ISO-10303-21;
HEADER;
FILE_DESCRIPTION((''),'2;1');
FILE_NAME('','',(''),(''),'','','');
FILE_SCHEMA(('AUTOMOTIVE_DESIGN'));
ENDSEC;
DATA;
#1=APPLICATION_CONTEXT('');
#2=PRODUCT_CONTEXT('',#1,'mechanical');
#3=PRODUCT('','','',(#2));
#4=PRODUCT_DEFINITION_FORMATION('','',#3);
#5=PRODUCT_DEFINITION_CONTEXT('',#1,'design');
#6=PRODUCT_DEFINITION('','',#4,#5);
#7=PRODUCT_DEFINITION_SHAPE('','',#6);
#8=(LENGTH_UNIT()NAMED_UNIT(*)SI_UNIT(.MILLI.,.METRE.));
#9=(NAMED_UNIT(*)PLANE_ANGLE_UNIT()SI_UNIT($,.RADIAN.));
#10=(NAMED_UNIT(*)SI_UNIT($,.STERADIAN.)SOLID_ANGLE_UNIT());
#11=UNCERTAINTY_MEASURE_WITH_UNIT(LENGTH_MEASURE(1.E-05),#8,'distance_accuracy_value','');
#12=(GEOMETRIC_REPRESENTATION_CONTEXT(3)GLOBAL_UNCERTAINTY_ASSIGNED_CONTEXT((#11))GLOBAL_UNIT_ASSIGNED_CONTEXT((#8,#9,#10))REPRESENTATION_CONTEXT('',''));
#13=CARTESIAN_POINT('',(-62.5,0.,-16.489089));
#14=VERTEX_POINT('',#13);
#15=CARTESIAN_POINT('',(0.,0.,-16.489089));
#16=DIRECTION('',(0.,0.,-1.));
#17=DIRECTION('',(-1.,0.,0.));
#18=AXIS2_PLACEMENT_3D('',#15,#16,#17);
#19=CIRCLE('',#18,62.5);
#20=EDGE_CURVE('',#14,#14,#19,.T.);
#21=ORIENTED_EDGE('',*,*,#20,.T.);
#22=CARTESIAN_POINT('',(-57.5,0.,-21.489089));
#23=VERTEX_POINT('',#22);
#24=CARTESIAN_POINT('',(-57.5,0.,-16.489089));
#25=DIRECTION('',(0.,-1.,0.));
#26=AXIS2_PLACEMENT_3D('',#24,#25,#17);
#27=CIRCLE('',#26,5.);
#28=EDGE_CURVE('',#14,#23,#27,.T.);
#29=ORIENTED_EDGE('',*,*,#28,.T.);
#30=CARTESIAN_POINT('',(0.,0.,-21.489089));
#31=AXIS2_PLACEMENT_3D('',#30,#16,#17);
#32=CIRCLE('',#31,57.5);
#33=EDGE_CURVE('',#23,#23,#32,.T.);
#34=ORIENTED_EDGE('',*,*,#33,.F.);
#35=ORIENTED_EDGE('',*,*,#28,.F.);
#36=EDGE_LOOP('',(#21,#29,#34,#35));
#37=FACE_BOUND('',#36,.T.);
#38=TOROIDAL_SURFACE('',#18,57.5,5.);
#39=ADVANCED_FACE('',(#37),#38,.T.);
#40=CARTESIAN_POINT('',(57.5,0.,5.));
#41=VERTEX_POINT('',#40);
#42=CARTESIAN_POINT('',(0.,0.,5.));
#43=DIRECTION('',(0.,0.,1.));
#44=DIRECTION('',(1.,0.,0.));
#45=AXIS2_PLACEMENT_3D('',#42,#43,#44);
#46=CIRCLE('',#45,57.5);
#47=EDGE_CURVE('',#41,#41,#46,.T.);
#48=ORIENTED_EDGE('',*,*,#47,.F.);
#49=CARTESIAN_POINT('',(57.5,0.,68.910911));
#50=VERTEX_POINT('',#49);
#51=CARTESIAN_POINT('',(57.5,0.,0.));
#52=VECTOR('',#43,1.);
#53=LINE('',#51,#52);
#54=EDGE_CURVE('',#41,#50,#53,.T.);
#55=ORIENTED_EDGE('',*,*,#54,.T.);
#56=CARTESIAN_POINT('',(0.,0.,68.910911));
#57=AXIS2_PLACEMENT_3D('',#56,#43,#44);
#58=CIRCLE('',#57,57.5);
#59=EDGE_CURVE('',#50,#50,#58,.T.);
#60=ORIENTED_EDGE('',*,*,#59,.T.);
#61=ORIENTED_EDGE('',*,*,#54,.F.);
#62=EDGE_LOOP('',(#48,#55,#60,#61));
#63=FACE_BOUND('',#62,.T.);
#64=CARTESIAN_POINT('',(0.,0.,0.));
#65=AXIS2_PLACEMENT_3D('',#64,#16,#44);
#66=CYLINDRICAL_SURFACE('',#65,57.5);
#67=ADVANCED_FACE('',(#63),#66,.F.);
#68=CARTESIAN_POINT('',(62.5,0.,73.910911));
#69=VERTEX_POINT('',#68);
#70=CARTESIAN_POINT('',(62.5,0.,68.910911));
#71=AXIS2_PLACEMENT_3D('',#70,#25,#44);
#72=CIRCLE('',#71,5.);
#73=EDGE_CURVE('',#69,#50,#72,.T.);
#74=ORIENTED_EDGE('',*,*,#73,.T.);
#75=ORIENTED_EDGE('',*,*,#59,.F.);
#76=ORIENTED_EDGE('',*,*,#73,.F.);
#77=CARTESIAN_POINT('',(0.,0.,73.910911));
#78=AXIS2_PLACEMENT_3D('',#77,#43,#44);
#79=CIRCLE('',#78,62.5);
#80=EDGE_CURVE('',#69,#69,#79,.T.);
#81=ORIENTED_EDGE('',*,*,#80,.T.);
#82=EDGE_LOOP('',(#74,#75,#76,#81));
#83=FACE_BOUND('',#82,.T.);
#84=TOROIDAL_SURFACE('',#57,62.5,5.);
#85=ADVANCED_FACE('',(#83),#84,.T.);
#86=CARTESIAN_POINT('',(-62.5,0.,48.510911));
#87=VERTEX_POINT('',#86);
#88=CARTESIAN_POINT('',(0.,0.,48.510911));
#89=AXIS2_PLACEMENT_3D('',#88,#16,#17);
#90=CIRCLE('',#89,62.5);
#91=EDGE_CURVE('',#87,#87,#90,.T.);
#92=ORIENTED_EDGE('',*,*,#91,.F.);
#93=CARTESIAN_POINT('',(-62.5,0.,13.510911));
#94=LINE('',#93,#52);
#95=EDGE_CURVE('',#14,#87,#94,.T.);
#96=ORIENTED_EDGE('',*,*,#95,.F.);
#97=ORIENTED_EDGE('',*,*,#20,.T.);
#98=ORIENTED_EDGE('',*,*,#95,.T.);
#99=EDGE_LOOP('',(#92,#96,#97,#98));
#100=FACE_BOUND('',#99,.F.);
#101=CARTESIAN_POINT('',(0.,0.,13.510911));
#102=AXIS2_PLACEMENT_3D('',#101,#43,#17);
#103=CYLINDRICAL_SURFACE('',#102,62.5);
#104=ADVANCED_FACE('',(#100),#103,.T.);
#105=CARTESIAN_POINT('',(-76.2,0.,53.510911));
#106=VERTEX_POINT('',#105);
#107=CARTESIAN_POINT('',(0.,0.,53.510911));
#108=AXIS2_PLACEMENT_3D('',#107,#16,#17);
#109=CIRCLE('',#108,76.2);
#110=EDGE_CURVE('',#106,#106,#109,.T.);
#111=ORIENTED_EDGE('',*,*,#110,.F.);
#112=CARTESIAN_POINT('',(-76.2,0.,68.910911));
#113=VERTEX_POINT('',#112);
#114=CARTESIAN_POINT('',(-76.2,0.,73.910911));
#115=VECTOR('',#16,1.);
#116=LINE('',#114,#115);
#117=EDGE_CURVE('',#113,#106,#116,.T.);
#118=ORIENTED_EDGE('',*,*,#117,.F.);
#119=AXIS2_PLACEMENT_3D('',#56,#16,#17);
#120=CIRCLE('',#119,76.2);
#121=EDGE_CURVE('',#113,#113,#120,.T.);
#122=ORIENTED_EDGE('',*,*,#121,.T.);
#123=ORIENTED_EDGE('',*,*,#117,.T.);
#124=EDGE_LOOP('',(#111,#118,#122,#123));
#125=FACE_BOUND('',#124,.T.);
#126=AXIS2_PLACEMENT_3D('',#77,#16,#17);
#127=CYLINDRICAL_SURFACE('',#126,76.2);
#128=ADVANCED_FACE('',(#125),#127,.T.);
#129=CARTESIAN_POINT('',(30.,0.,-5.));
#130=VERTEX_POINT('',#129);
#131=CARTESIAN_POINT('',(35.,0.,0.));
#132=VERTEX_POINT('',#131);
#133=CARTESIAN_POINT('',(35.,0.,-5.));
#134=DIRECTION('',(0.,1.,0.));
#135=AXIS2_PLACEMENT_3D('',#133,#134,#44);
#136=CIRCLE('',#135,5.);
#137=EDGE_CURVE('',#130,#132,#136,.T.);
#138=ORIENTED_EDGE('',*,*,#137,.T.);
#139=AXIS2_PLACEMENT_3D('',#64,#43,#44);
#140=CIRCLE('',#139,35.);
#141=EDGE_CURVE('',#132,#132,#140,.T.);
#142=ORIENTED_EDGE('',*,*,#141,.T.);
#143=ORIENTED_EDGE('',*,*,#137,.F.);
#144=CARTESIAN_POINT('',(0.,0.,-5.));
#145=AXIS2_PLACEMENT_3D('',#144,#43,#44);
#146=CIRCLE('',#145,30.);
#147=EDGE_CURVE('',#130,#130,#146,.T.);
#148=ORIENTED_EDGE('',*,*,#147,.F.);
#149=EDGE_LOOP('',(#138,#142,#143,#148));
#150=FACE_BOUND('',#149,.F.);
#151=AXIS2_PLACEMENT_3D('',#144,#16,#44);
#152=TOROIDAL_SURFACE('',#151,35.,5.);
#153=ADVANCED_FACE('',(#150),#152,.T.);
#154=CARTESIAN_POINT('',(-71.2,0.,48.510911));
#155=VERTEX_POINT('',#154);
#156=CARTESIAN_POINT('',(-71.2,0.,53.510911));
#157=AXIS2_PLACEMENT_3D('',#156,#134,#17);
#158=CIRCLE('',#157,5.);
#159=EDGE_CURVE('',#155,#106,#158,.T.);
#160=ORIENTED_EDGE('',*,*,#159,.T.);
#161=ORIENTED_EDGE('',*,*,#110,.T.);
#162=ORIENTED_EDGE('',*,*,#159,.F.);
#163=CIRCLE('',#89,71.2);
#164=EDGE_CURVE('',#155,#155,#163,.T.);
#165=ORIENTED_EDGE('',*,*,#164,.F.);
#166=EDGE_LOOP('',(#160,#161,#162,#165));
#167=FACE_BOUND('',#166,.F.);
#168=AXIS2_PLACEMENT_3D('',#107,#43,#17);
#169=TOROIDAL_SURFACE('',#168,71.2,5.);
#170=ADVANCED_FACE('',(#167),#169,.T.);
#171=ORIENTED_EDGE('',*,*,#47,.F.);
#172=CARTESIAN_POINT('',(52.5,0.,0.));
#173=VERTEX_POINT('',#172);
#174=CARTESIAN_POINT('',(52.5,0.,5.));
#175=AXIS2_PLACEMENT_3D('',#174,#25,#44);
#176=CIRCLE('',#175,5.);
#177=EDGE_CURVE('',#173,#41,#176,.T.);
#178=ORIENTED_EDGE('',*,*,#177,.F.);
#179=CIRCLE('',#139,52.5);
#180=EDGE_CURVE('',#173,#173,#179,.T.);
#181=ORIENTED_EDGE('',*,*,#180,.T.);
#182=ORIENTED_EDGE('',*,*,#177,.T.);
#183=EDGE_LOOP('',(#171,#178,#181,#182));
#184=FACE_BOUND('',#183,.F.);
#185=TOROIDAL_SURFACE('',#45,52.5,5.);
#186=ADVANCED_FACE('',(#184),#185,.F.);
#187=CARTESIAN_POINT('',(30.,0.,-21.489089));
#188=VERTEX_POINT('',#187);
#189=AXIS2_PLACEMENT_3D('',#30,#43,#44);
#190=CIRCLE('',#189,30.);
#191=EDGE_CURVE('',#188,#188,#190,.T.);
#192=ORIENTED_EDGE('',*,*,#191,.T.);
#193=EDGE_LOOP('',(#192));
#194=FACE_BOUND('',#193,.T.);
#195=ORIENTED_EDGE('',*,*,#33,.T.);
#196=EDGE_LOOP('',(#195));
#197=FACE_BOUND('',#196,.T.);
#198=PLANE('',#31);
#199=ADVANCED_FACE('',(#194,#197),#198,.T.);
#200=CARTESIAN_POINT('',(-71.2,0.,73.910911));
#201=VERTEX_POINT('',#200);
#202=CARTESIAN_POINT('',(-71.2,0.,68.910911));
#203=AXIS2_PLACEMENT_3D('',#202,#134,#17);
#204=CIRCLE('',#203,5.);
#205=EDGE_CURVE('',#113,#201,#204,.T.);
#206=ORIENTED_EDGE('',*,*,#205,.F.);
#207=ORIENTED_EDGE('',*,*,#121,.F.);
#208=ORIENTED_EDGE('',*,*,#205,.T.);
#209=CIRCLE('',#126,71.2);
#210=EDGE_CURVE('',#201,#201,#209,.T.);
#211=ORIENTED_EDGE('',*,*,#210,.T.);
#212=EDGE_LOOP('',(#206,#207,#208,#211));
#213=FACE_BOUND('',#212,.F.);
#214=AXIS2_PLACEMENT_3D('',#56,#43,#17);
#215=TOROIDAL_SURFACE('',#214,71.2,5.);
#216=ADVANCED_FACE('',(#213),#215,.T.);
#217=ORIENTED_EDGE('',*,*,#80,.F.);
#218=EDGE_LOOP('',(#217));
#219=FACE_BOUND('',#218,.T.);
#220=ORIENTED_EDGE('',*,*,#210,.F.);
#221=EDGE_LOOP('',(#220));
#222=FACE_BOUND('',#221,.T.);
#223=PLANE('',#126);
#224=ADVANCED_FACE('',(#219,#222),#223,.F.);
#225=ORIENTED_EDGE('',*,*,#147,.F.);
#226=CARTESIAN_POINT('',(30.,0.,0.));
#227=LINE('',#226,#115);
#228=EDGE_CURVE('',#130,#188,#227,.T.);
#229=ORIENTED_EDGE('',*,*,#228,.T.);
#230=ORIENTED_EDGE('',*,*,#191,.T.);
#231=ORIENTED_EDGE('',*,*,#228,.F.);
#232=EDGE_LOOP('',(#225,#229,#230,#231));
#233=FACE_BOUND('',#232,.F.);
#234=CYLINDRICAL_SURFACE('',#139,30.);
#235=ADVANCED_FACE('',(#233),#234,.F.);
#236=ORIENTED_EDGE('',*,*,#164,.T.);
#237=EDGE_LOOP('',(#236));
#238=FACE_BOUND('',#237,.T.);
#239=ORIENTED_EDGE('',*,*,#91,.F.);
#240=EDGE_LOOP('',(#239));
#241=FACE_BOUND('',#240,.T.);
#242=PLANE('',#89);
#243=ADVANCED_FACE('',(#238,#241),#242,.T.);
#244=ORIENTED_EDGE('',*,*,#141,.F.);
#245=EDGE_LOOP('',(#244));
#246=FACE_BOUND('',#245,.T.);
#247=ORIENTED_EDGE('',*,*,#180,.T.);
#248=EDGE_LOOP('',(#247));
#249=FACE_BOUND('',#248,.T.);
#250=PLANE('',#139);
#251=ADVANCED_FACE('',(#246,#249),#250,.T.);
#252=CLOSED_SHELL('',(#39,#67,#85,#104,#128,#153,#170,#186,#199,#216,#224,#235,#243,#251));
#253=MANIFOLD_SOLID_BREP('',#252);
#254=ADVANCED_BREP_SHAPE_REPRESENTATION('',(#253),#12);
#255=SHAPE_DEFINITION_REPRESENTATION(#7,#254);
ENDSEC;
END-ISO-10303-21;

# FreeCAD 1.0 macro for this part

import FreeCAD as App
import Part
import Sketcher

V = App.Vector
Q = App.Units.Quantity


def edges_at(feature, points):
    """Names of the edges that pass closest to the given points."""
    edges = feature.Shape.Edges
    near = lambda p: min(range(len(edges)), key=lambda i: edges[i].distToShape(Part.Vertex(*p))[0])
    return sorted({f"Edge{near(p) + 1}" for p in points})

doc = App.newDocument("Part")
params = doc.addObject("Spreadsheet::Sheet", "Params")
for row, (alias, value) in enumerate([
    ("sketch1_height", "70 mm"),
    ("sketch1_width", "62.5 mm"),
    ("sketch1_width2", "76.2 mm"),
    ("sketch1_height2", "95.4 mm"),
    ("revolution_angle", "360 deg"),
    ("sketch2_diameter", "115 mm"),
    ("sketch3_diameter", "60 mm"),
    ("fillet_radius", "5 mm"),
], start=1):
    params.set(f"A{row}", alias)
    params.set(f"B{row}", "=" + value)
    params.setAlias(f"B{row}", alias)

body = doc.addObject("PartDesign::Body", "Body")

# Sketch on XZ plane
sketch1 = body.newObject("Sketcher::SketchObject", "Sketch")
sketch1.AttachmentSupport = (doc.getObject("XZ_Plane"), [""])
sketch1.MapMode = "FlatFace"
sketch1.addGeometry([
    Part.LineSegment(V(-62, 49, 0), V(-62, -21, 0)),  # 0
    Part.LineSegment(V(-62, -21, 0), V(0, -21, 0)),  # 1
    Part.LineSegment(V(0, -21, 0), V(0, 74, 0)),  # 2
    Part.LineSegment(V(0, 74, 0), V(-76, 74, 0)),  # 3
    Part.LineSegment(V(-76, 74, 0), V(-76, 49, 0)),  # 4
    Part.LineSegment(V(-76, 49, 0), V(-62, 49, 0)),  # 5
], False)
sketch1.addConstraint([
    Sketcher.Constraint("Coincident", 0, 2, 1, 1),
    Sketcher.Constraint("Coincident", 1, 2, 2, 1),
    Sketcher.Constraint("Coincident", 2, 2, 3, 1),
    Sketcher.Constraint("Coincident", 3, 2, 4, 1),
    Sketcher.Constraint("Coincident", 4, 2, 5, 1),
    Sketcher.Constraint("Coincident", 5, 2, 0, 1),
    Sketcher.Constraint("Vertical", 0),
    Sketcher.Constraint("Horizontal", 1),
    Sketcher.Constraint("Vertical", 2),
    Sketcher.Constraint("Horizontal", 3),
    Sketcher.Constraint("Vertical", 4),
    Sketcher.Constraint("Horizontal", 5),
    Sketcher.Constraint("PointOnObject", 1, 2, -2),
    Sketcher.Constraint("DistanceY", 0, 2, 0, 1, Q("70 mm")),
    Sketcher.Constraint("DistanceX", 1, 1, 1, 2, Q("62.5 mm")),
    Sketcher.Constraint("DistanceX", 3, 2, 3, 1, Q("76.2 mm")),
    Sketcher.Constraint("DistanceY", 2, 1, 2, 2, Q("95.4 mm")),
    Sketcher.Constraint("DistanceY", 0, 2, -1, 1, Q("21.489089 mm")),
])
sketch1.setExpression("Constraints[13]", "Params.sketch1_height")
sketch1.setExpression("Constraints[14]", "Params.sketch1_width")
sketch1.setExpression("Constraints[15]", "Params.sketch1_width2")
sketch1.setExpression("Constraints[16]", "Params.sketch1_height2")
revolution = body.newObject("PartDesign::Revolution", "Revolution")
revolution.Profile = sketch1
revolution.ReferenceAxis = (sketch1, ["V_Axis"])
revolution.setExpression("Angle", "Params.revolution_angle")

# Sketch on XY plane
sketch2 = body.newObject("Sketcher::SketchObject", "Sketch001")
sketch2.AttachmentSupport = (doc.getObject("XY_Plane"), [""])
sketch2.MapMode = "FlatFace"
sketch2.addGeometry(Part.Circle(V(0, 0, 0), V(0, 0, 1), 58), False)
sketch2.addConstraint([
    Sketcher.Constraint("Coincident", 0, 3, -1, 1),
    Sketcher.Constraint("Diameter", 0, Q("115 mm")),
])
sketch2.setExpression("Constraints[1]", "Params.sketch2_diameter")
pocket1 = body.newObject("PartDesign::Pocket", "Pocket")
pocket1.Profile = sketch2
pocket1.Type = "ThroughAll"
pocket1.Reversed = True

# Sketch on XY plane
sketch3 = body.newObject("Sketcher::SketchObject", "Sketch002")
sketch3.AttachmentSupport = (doc.getObject("XY_Plane"), [""])
sketch3.MapMode = "FlatFace"
sketch3.addGeometry(Part.Circle(V(0, 0, 0), V(0, 0, 1), 30), False)
sketch3.addConstraint([
    Sketcher.Constraint("Coincident", 0, 3, -1, 1),
    Sketcher.Constraint("Diameter", 0, Q("60 mm")),
])
sketch3.setExpression("Constraints[1]", "Params.sketch3_diameter")
pocket2 = body.newObject("PartDesign::Pocket", "Pocket001")
pocket2.Profile = sketch3
pocket2.Type = "ThroughAll"
doc.recompute()

fillet = body.newObject("PartDesign::Fillet", "Fillet")
fillet.Base = (pocket2, edges_at(pocket2, [
    (-57.5, 0, 73.911),
    (76.2, 0, 73.911),
    (76.2, 0, 48.511),
    (62.5, 0, -21.489),
    (-30, 0, 0),
    (-57.5, 0, 0),
]))
fillet.setExpression("Radius", "Params.fillet_radius")

doc.recompute()
